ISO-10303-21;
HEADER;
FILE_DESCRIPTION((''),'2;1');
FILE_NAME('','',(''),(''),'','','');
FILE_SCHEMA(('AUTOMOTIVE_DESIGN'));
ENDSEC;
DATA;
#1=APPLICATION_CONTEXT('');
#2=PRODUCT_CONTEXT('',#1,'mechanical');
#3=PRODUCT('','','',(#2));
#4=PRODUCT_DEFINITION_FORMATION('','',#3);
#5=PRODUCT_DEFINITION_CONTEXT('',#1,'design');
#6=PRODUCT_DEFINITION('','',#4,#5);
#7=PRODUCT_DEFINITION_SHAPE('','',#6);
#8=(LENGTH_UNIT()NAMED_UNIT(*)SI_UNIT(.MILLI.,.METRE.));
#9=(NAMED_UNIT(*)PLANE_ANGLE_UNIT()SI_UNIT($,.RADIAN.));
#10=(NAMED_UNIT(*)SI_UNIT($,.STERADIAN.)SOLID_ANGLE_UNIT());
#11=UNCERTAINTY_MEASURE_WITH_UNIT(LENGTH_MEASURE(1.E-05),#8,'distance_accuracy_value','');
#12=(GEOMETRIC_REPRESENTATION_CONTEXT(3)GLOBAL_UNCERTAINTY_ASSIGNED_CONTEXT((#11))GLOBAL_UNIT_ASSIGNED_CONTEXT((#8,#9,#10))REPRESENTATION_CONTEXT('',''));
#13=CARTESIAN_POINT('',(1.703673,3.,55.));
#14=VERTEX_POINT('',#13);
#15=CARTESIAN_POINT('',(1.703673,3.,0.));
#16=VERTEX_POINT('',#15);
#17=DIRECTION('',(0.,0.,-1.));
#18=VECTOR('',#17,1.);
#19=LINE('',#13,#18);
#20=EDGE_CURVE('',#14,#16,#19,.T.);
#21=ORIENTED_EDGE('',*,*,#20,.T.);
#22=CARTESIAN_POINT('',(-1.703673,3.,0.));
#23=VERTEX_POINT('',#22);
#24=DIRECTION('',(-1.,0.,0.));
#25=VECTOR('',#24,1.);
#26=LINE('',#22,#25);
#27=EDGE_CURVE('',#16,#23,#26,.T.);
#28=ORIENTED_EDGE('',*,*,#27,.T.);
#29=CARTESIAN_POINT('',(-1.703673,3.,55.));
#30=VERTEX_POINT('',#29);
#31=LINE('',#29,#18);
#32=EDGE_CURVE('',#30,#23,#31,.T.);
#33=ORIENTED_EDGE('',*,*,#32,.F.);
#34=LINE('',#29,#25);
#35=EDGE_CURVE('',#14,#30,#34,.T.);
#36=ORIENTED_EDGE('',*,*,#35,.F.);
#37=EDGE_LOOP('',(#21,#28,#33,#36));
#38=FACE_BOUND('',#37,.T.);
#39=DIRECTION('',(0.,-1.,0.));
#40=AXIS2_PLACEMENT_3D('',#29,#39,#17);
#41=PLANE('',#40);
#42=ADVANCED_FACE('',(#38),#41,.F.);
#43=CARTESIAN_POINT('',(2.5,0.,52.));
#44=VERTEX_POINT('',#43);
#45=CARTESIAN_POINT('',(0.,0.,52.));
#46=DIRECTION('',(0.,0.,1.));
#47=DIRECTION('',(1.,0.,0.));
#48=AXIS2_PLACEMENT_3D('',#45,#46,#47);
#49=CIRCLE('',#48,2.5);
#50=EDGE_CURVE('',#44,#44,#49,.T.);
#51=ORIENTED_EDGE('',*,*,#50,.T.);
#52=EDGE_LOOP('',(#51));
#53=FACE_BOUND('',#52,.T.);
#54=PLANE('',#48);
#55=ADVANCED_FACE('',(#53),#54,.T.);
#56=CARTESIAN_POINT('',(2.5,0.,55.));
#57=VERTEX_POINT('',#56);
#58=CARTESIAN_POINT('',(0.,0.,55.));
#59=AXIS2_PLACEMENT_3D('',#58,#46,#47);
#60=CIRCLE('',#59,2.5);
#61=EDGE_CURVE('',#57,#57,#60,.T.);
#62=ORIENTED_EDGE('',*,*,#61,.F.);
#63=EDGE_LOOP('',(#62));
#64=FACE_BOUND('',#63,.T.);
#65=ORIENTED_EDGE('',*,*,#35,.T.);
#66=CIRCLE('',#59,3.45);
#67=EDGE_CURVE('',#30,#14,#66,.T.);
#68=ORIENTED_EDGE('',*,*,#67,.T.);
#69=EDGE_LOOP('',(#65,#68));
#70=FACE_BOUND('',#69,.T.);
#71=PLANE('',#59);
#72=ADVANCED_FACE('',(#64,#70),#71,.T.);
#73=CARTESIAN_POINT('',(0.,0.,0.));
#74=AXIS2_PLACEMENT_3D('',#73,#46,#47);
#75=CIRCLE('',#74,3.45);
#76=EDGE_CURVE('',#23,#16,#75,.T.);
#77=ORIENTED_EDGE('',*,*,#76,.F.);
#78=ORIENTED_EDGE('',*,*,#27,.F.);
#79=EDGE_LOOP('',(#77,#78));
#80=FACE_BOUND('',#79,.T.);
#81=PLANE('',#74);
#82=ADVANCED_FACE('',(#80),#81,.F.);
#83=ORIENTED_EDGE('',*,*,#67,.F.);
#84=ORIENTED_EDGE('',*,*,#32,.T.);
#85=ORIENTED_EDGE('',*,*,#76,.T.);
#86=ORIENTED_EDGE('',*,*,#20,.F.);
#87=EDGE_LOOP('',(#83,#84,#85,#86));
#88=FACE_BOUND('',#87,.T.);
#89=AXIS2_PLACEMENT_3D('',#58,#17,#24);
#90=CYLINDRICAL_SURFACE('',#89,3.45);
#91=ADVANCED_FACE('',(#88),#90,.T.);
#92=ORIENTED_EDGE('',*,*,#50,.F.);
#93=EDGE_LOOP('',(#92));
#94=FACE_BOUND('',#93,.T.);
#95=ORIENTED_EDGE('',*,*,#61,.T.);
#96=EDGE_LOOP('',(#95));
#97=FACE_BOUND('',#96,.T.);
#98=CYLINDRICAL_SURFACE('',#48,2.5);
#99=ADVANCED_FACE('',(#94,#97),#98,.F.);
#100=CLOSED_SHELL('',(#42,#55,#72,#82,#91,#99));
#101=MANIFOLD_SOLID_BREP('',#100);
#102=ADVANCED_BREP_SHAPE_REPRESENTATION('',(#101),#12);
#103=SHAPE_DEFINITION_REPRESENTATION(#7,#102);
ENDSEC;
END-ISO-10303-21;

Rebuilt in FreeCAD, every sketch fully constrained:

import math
import FreeCAD as App
import Part
import Sketcher
Q = App.Units.Quantity

doc = App.newDocument("Part")
body = doc.addObject("PartDesign::Body", "Body")

sketch1 = body.newObject("Sketcher::SketchObject", "Sketch")
sketch1.AttachmentSupport = (doc.getObject("XY_Plane"), [""])
sketch1.MapMode = "FlatFace"
sketch1.addGeometry([
    Part.LineSegment(App.Vector(1.7, 3, 0), App.Vector(-1.7, 3, 0)),
    Part.ArcOfCircle(Part.Circle(App.Vector(0, 0, 0), App.Vector(0, 0, 1), 3.5), math.radians(120), math.radians(420)),
], False)
sketch1.addConstraint([
    Sketcher.Constraint("Coincident", 0, 1, 1, 2),
    Sketcher.Constraint("Coincident", 1, 1, 0, 2),
    Sketcher.Constraint("Horizontal", 0),
    Sketcher.Constraint("Coincident", 1, 3, -1, 1),
    Sketcher.Constraint("Radius", 1, Q("3.45 mm")),
    Sketcher.Constraint("DistanceY", -1, 1, 0, 1, Q("3 mm")),
])
pad1 = body.newObject("PartDesign::Pad", "Pad")
pad1.Profile = sketch1
pad1.Length = 55

sketch2 = body.newObject("Sketcher::SketchObject", "Sketch001")
sketch2.AttachmentSupport = (doc.getObject("XY_Plane"), [""])
sketch2.MapMode = "FlatFace"
sketch2.AttachmentOffset = App.Placement(App.Vector(0, 0, 55), App.Rotation())
sketch2.addGeometry(Part.Circle(App.Vector(0, 0, 0), App.Vector(0, 0, 1), 2.5), False)
sketch2.addConstraint([
    Sketcher.Constraint("Coincident", 0, 3, -1, 1),
    Sketcher.Constraint("Diameter", 0, Q("5 mm")),
])
pocket1 = body.newObject("PartDesign::Pocket", "Pocket")
pocket1.Profile = sketch2
pocket1.Length = 3

doc.recompute()
